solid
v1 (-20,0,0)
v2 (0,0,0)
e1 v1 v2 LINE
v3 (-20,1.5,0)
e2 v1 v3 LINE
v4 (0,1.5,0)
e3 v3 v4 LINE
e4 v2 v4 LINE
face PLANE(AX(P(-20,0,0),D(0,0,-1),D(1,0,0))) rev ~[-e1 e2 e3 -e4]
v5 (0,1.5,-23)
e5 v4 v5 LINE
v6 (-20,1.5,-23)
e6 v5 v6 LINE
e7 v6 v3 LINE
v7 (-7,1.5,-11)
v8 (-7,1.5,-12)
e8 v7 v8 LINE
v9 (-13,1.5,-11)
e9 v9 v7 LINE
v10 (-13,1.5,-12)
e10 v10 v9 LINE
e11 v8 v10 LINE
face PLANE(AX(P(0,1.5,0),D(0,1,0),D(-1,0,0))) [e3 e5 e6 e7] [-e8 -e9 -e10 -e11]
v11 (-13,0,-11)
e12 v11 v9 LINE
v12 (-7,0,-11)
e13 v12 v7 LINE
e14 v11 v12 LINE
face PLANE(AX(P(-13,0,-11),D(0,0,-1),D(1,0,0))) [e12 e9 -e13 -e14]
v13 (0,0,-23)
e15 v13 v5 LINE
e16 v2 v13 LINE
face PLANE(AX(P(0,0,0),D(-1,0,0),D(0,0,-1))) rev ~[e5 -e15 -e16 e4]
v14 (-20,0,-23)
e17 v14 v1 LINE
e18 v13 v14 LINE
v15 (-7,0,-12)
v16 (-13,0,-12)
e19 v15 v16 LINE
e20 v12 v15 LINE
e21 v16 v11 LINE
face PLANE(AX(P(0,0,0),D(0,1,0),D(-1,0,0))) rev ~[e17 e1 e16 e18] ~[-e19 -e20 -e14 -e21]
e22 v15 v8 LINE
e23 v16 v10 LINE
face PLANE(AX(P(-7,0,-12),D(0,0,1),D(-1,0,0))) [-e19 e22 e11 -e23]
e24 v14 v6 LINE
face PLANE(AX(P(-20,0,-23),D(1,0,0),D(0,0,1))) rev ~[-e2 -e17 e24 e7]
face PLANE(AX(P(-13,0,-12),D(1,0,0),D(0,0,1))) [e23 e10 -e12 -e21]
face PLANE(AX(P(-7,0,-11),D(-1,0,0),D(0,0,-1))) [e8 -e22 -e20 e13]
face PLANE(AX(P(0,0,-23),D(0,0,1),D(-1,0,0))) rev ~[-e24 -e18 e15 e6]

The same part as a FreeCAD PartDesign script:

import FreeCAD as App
import Part
import Sketcher

V = App.Vector

doc = App.newDocument("Part")
body = doc.addObject("PartDesign::Body", "Body")

# Sketch on XZ plane
sketch1 = body.newObject("Sketcher::SketchObject", "Sketch")
sketch1.AttachmentSupport = (doc.getObject("XZ_Plane"), [""])
sketch1.MapMode = "FlatFace"
sketch1.addGeometry([
    Part.LineSegment(V(-20, 0, 0), V(0, 0, 0)),  # 0
    Part.LineSegment(V(0, 0, 0), V(0, -23, 0)),  # 1
    Part.LineSegment(V(0, -23, 0), V(-20, -23, 0)),  # 2
    Part.LineSegment(V(-20, -23, 0), V(-20, 0, 0)),  # 3
    Part.LineSegment(V(-7, -11, 0), V(-13, -11, 0)),  # 4
    Part.LineSegment(V(-13, -11, 0), V(-13, -12, 0)),  # 5
    Part.LineSegment(V(-13, -12, 0), V(-7, -12, 0)),  # 6
    Part.LineSegment(V(-7, -12, 0), V(-7, -11, 0)),  # 7
], False)
sketch1.addConstraint([
    Sketcher.Constraint("Coincident", 0, 2, 1, 1),
    Sketcher.Constraint("Coincident", 1, 2, 2, 1),
    Sketcher.Constraint("Coincident", 2, 2, 3, 1),
    Sketcher.Constraint("Coincident", 3, 2, 0, 1),
    Sketcher.Constraint("Coincident", 4, 2, 5, 1),
    Sketcher.Constraint("Coincident", 5, 2, 6, 1),
    Sketcher.Constraint("Coincident", 6, 2, 7, 1),
    Sketcher.Constraint("Coincident", 7, 2, 4, 1),
    Sketcher.Constraint("Horizontal", 0),
    Sketcher.Constraint("Vertical", 1),
    Sketcher.Constraint("Horizontal", 2),
    Sketcher.Constraint("Vertical", 3),
    Sketcher.Constraint("Horizontal", 4),
    Sketcher.Constraint("Vertical", 5),
    Sketcher.Constraint("Horizontal", 6),
    Sketcher.Constraint("Vertical", 7),
    Sketcher.Constraint("Coincident", 0, 2, -1, 1),
    Sketcher.Constraint("DistanceX", 0, 1, 0, 2, 20.0),
    Sketcher.Constraint("DistanceX", 4, 2, 4, 1, 6.0),
    Sketcher.Constraint("DistanceY", 1, 2, 1, 1, 23.0),
    Sketcher.Constraint("DistanceY", 5, 2, 5, 1, 1.0),
    Sketcher.Constraint("DistanceX", 4, 2, -1, 1, 13.0),
    Sketcher.Constraint("DistanceY", 4, 2, -1, 1, 11.0),
])
pad1 = body.newObject("PartDesign::Pad", "Pad")
pad1.Profile = sketch1
pad1.Length = 1.5
pad1.Reversed = True

doc.recompute()
